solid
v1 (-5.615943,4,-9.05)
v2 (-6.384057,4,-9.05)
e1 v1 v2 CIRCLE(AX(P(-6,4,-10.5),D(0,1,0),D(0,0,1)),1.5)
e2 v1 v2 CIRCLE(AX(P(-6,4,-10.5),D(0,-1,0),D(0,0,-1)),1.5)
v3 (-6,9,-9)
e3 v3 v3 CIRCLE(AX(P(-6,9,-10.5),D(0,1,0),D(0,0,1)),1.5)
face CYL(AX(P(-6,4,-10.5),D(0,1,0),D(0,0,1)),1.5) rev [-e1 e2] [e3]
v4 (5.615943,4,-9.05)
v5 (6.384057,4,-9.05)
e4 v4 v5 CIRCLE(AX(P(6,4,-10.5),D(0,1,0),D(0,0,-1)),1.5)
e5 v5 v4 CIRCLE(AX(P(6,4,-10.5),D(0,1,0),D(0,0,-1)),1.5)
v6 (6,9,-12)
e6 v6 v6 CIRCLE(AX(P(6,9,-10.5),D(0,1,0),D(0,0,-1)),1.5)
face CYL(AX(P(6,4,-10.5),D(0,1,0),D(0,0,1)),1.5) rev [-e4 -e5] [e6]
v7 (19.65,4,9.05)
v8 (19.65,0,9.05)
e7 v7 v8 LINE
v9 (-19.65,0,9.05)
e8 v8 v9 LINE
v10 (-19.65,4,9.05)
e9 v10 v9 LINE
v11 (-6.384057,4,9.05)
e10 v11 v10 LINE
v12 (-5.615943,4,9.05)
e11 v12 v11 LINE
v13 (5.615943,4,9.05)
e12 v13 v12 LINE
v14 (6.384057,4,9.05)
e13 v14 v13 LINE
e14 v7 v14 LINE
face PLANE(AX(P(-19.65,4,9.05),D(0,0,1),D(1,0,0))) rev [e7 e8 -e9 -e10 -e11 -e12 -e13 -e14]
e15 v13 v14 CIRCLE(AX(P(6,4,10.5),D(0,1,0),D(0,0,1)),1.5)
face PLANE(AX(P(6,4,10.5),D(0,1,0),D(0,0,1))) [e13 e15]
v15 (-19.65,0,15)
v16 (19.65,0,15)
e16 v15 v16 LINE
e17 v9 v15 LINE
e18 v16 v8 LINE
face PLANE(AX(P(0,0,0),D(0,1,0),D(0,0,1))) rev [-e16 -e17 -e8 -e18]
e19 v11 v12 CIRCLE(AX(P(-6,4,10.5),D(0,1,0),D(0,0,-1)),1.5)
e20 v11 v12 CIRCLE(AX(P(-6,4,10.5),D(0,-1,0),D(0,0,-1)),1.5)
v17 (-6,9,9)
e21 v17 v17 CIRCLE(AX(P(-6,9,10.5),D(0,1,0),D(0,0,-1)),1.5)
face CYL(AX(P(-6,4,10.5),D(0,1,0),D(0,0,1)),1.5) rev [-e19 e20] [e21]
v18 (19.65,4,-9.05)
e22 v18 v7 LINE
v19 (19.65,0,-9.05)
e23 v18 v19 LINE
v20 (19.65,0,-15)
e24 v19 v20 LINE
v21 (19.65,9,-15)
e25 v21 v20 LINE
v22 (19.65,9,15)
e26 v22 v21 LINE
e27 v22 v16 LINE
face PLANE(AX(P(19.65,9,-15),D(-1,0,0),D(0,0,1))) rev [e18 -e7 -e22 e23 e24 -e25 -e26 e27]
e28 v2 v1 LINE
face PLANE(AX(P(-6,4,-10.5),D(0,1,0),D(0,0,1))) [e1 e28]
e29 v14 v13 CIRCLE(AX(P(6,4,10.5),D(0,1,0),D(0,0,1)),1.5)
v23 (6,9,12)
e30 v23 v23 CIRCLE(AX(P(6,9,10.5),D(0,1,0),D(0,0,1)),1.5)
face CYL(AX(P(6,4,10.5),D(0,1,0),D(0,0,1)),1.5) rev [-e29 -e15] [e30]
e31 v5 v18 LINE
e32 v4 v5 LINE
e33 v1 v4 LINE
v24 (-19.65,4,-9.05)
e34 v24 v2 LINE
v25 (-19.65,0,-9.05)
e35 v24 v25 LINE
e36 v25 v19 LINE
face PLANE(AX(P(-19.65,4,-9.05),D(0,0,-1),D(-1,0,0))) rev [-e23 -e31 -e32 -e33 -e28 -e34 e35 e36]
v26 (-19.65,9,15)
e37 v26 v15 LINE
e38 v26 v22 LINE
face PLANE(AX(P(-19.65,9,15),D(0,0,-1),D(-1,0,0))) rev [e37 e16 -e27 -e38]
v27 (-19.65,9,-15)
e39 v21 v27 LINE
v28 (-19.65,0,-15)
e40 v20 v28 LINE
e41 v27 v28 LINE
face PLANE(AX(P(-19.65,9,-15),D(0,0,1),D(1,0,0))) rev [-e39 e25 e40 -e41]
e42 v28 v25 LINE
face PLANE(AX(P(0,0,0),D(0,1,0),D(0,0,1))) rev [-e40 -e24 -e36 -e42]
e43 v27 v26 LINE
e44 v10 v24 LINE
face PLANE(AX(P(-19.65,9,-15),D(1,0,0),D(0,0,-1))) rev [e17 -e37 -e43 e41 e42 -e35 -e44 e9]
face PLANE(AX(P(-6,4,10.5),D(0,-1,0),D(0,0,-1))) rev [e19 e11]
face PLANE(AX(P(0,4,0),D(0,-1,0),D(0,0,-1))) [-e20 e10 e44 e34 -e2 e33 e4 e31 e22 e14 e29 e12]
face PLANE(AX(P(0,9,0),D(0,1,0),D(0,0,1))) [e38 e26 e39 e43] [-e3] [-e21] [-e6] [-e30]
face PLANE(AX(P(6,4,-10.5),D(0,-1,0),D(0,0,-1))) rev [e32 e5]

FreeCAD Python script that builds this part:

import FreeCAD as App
import Part
import Sketcher
from FreeCAD import Vector
Q = App.Units.Quantity

doc = App.newDocument("Part")
body = doc.addObject("PartDesign::Body", "Body")

# Sketch on XZ plane
sketch1 = doc.addObject("Sketcher::SketchObject", "Sketch")
body.addObject(sketch1)
sketch1.AttachmentSupport = (doc.XZ_Plane, [""])
sketch1.MapMode = "FlatFace"
sketch1.addGeometry([
    Part.LineSegment(Vector(-19.65, -15, 0), Vector(-19.65, 15, 0)),
    Part.LineSegment(Vector(-19.65, 15, 0), Vector(19.65, 15, 0)),
    Part.LineSegment(Vector(19.65, 15, 0), Vector(19.65, -15, 0)),
    Part.LineSegment(Vector(19.65, -15, 0), Vector(-19.65, -15, 0)),
], False)
sketch1.addConstraint([
    Sketcher.Constraint("Coincident", 0, 2, 1, 1),
    Sketcher.Constraint("Coincident", 1, 2, 2, 1),
    Sketcher.Constraint("Coincident", 2, 2, 3, 1),
    Sketcher.Constraint("Coincident", 3, 2, 0, 1),
    Sketcher.Constraint("Vertical", 0),
    Sketcher.Constraint("Horizontal", 1),
    Sketcher.Constraint("Vertical", 2),
    Sketcher.Constraint("Horizontal", 3),
    Sketcher.Constraint("Symmetric", 0, 2, 2, 2, -1, 1),
    Sketcher.Constraint("DistanceY", 0, 1, 0, 2, Q("30 mm")),
    Sketcher.Constraint("DistanceX", 1, 1, 1, 2, Q("39.3 mm")),
])
pad1 = doc.addObject("PartDesign::Pad", "Pad")
body.addObject(pad1)
pad1.Profile = sketch1
pad1.Length = 9
pad1.Reversed = True

# Sketch on XZ plane
sketch2 = doc.addObject("Sketcher::SketchObject", "Sketch001")
body.addObject(sketch2)
sketch2.AttachmentSupport = (doc.XZ_Plane, [""])
sketch2.MapMode = "FlatFace"
sketch2.addGeometry([
    Part.LineSegment(Vector(-19.65, 9.05, 0), Vector(-19.65, -9.05, 0)),
    Part.LineSegment(Vector(-19.65, -9.05, 0), Vector(19.65, -9.05, 0)),
    Part.LineSegment(Vector(19.65, -9.05, 0), Vector(19.65, 9.05, 0)),
    Part.LineSegment(Vector(19.65, 9.05, 0), Vector(-19.65, 9.05, 0)),
], False)
sketch2.addConstraint([
    Sketcher.Constraint("Coincident", 0, 2, 1, 1),
    Sketcher.Constraint("Coincident", 1, 2, 2, 1),
    Sketcher.Constraint("Coincident", 2, 2, 3, 1),
    Sketcher.Constraint("Coincident", 3, 2, 0, 1),
    Sketcher.Constraint("Vertical", 0),
    Sketcher.Constraint("Horizontal", 1),
    Sketcher.Constraint("Vertical", 2),
    Sketcher.Constraint("Horizontal", 3),
    Sketcher.Constraint("Symmetric", 0, 2, 2, 2, -1, 1),
    Sketcher.Constraint("DistanceX", 1, 1, 1, 2, Q("39.3 mm")),
    Sketcher.Constraint("DistanceY", 0, 2, 0, 1, Q("18.1 mm")),
])
pocket1 = doc.addObject("PartDesign::Pocket", "Pocket")
body.addObject(pocket1)
pocket1.Profile = sketch2
pocket1.Length = 4

# Sketch on XZ plane
sketch3 = doc.addObject("Sketcher::SketchObject", "Sketch002")
body.addObject(sketch3)
sketch3.AttachmentSupport = (doc.XZ_Plane, [""])
sketch3.MapMode = "FlatFace"
sketch3.AttachmentOffset = App.Placement(Vector(0, 0, -9), App.Rotation())
sketch3.addGeometry([
    Part.Circle(Vector(-6, -10.5, 0), Vector(0, 0, 1), 1.5),
    Part.Circle(Vector(6, -10.5, 0), Vector(0, 0, 1), 1.5),
    Part.Circle(Vector(6, 10.5, 0), Vector(0, 0, 1), 1.5),
    Part.Circle(Vector(-6, 10.5, 0), Vector(0, 0, 1), 1.5),
], False)
sketch3.addConstraint([
    Sketcher.Constraint("Equal", 0, 1),
    Sketcher.Constraint("Equal", 1, 2),
    Sketcher.Constraint("Equal", 2, 3),
    Sketcher.Constraint("Symmetric", 0, 3, 2, 3, -1, 1),
    Sketcher.Constraint("Symmetric", 1, 3, 3, 3, -1, 1),
    Sketcher.Constraint("Symmetric", 0, 3, 1, 3, -2),
    Sketcher.Constraint("Diameter", 0, Q("3 mm")),
    Sketcher.Constraint("DistanceX", 0, 3, -1, 1, Q("6 mm")),
    Sketcher.Constraint("DistanceY", 1, 3, 2, 3, Q("21 mm")),
])
pocket2 = doc.addObject("PartDesign::Pocket", "Pocket001")
body.addObject(pocket2)
pocket2.Profile = sketch3
pocket2.Length = 5
pocket2.Reversed = True

doc.recompute()
